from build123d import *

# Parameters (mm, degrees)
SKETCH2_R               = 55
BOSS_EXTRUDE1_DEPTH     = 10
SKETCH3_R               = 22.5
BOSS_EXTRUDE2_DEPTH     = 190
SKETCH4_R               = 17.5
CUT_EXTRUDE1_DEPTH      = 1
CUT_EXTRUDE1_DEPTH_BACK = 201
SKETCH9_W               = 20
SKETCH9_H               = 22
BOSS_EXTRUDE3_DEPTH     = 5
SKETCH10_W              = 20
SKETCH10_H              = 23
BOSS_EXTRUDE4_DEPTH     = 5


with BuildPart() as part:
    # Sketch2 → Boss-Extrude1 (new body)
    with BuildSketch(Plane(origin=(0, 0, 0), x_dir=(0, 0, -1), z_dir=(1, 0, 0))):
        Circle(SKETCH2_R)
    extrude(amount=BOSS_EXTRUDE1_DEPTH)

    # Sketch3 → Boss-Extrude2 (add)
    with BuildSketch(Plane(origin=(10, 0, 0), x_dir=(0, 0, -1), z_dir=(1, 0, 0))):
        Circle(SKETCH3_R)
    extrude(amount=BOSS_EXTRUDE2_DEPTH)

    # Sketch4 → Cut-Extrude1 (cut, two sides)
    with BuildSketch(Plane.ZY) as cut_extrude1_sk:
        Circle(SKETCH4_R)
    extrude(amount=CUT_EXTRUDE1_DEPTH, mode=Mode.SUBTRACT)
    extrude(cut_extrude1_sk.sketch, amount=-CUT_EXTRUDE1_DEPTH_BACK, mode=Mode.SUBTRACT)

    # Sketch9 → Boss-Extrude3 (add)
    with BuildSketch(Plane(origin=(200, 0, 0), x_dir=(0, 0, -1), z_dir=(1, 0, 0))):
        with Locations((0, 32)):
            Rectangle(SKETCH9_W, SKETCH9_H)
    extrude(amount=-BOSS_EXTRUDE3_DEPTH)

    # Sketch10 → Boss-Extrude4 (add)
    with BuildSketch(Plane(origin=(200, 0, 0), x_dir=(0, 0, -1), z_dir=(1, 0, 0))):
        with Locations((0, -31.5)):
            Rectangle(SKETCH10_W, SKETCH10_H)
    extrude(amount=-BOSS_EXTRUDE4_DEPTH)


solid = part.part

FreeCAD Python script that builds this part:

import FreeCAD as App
import Part
import Sketcher

V = App.Vector

doc = App.newDocument("Part")
body = doc.addObject("PartDesign::Body", "Body")

# Sketch on YZ plane
sketch1 = body.newObject("Sketcher::SketchObject", "Sketch")
sketch1.AttachmentSupport = (doc.getObject("YZ_Plane"), [""])
sketch1.MapMode = "FlatFace"
sketch1.addGeometry(Part.Circle(V(0, 0, 0), V(0, 0, 1), 55), False)
sketch1.addConstraint(Sketcher.Constraint("Coincident", 0, 3, -1, 1))
sketch1.addConstraint(Sketcher.Constraint("Diameter", 0, 110.0))
pad1 = body.newObject("PartDesign::Pad", "Pad")
pad1.Profile = sketch1
pad1.Length = 10

# Sketch on YZ plane
sketch2 = body.newObject("Sketcher::SketchObject", "Sketch001")
sketch2.AttachmentSupport = (doc.getObject("YZ_Plane"), [""])
sketch2.MapMode = "FlatFace"
sketch2.AttachmentOffset = App.Placement(V(0, 0, 10), App.Rotation())
sketch2.addGeometry(Part.Circle(V(0, 0, 0), V(0, 0, 1), 22), False)
sketch2.addConstraint(Sketcher.Constraint("Coincident", 0, 3, -1, 1))
sketch2.addConstraint(Sketcher.Constraint("Diameter", 0, 45.0))
pad2 = body.newObject("PartDesign::Pad", "Pad001")
pad2.Profile = sketch2
pad2.Length = 190

# Sketch on YZ plane
sketch3 = body.newObject("Sketcher::SketchObject", "Sketch002")
sketch3.AttachmentSupport = (doc.getObject("YZ_Plane"), [""])
sketch3.MapMode = "FlatFace"
sketch3.addGeometry(Part.Circle(V(0, 0, 0), V(0, 0, 1), 18), False)
sketch3.addConstraint(Sketcher.Constraint("Coincident", 0, 3, -1, 1))
sketch3.addConstraint(Sketcher.Constraint("Diameter", 0, 35.0))
pocket1 = body.newObject("PartDesign::Pocket", "Pocket")
pocket1.Profile = sketch3
pocket1.Type = "ThroughAll"
pocket1.Midplane = True

# Sketch on YZ plane
sketch4 = body.newObject("Sketcher::SketchObject", "Sketch003")
sketch4.AttachmentSupport = (doc.getObject("YZ_Plane"), [""])
sketch4.MapMode = "FlatFace"
sketch4.AttachmentOffset = App.Placement(V(0, 0, 200), App.Rotation())
sketch4.addGeometry(Part.LineSegment(V(43, 10, 0), V(21, 10, 0)), False)
sketch4.addGeometry(Part.LineSegment(V(21, 10, 0), V(21, -10, 0)), False)
sketch4.addGeometry(Part.LineSegment(V(21, -10, 0), V(43, -10, 0)), False)
sketch4.addGeometry(Part.LineSegment(V(43, -10, 0), V(43, 10, 0)), False)
sketch4.addConstraint(Sketcher.Constraint("Coincident", 0, 2, 1, 1))
sketch4.addConstraint(Sketcher.Constraint("Coincident", 1, 2, 2, 1))
sketch4.addConstraint(Sketcher.Constraint("Coincident", 2, 2, 3, 1))
sketch4.addConstraint(Sketcher.Constraint("Coincident", 3, 2, 0, 1))
sketch4.addConstraint(Sketcher.Constraint("Horizontal", 0))
sketch4.addConstraint(Sketcher.Constraint("Vertical", 1))
sketch4.addConstraint(Sketcher.Constraint("Horizontal", 2))
sketch4.addConstraint(Sketcher.Constraint("Vertical", 3))
sketch4.addConstraint(Sketcher.Constraint("DistanceX", 0, 2, 0, 1, 22.0))
sketch4.addConstraint(Sketcher.Constraint("DistanceY", 1, 2, 1, 1, 20.0))
sketch4.addConstraint(Sketcher.Constraint("DistanceX", -1, 1, 0, 2, 21.0))
sketch4.addConstraint(Sketcher.Constraint("DistanceY", -1, 1, 0, 2, 10.0))
pad3 = body.newObject("PartDesign::Pad", "Pad002")
pad3.Profile = sketch4
pad3.Length = 5
pad3.Reversed = True

# Sketch on YZ plane
sketch5 = body.newObject("Sketcher::SketchObject", "Sketch004")
sketch5.AttachmentSupport = (doc.getObject("YZ_Plane"), [""])
sketch5.MapMode = "FlatFace"
sketch5.AttachmentOffset = App.Placement(V(0, 0, 200), App.Rotation())
sketch5.addGeometry(Part.LineSegment(V(-20, 10, 0), V(-43, 10, 0)), False)
sketch5.addGeometry(Part.LineSegment(V(-43, 10, 0), V(-43, -10, 0)), False)
sketch5.addGeometry(Part.LineSegment(V(-43, -10, 0), V(-20, -10, 0)), False)
sketch5.addGeometry(Part.LineSegment(V(-20, -10, 0), V(-20, 10, 0)), False)
sketch5.addConstraint(Sketcher.Constraint("Coincident", 0, 2, 1, 1))
sketch5.addConstraint(Sketcher.Constraint("Coincident", 1, 2, 2, 1))
sketch5.addConstraint(Sketcher.Constraint("Coincident", 2, 2, 3, 1))
sketch5.addConstraint(Sketcher.Constraint("Coincident", 3, 2, 0, 1))
sketch5.addConstraint(Sketcher.Constraint("Horizontal", 0))
sketch5.addConstraint(Sketcher.Constraint("Vertical", 1))
sketch5.addConstraint(Sketcher.Constraint("Horizontal", 2))
sketch5.addConstraint(Sketcher.Constraint("Vertical", 3))
sketch5.addConstraint(Sketcher.Constraint("DistanceX", 0, 2, 0, 1, 23.0))
sketch5.addConstraint(Sketcher.Constraint("DistanceY", 1, 2, 1, 1, 20.0))
sketch5.addConstraint(Sketcher.Constraint("DistanceX", 0, 2, -1, 1, 43.0))
sketch5.addConstraint(Sketcher.Constraint("DistanceY", -1, 1, 0, 2, 10.0))
pad4 = body.newObject("PartDesign::Pad", "Pad003")
pad4.Profile = sketch5
pad4.Length = 5
pad4.Reversed = True

doc.recompute()
